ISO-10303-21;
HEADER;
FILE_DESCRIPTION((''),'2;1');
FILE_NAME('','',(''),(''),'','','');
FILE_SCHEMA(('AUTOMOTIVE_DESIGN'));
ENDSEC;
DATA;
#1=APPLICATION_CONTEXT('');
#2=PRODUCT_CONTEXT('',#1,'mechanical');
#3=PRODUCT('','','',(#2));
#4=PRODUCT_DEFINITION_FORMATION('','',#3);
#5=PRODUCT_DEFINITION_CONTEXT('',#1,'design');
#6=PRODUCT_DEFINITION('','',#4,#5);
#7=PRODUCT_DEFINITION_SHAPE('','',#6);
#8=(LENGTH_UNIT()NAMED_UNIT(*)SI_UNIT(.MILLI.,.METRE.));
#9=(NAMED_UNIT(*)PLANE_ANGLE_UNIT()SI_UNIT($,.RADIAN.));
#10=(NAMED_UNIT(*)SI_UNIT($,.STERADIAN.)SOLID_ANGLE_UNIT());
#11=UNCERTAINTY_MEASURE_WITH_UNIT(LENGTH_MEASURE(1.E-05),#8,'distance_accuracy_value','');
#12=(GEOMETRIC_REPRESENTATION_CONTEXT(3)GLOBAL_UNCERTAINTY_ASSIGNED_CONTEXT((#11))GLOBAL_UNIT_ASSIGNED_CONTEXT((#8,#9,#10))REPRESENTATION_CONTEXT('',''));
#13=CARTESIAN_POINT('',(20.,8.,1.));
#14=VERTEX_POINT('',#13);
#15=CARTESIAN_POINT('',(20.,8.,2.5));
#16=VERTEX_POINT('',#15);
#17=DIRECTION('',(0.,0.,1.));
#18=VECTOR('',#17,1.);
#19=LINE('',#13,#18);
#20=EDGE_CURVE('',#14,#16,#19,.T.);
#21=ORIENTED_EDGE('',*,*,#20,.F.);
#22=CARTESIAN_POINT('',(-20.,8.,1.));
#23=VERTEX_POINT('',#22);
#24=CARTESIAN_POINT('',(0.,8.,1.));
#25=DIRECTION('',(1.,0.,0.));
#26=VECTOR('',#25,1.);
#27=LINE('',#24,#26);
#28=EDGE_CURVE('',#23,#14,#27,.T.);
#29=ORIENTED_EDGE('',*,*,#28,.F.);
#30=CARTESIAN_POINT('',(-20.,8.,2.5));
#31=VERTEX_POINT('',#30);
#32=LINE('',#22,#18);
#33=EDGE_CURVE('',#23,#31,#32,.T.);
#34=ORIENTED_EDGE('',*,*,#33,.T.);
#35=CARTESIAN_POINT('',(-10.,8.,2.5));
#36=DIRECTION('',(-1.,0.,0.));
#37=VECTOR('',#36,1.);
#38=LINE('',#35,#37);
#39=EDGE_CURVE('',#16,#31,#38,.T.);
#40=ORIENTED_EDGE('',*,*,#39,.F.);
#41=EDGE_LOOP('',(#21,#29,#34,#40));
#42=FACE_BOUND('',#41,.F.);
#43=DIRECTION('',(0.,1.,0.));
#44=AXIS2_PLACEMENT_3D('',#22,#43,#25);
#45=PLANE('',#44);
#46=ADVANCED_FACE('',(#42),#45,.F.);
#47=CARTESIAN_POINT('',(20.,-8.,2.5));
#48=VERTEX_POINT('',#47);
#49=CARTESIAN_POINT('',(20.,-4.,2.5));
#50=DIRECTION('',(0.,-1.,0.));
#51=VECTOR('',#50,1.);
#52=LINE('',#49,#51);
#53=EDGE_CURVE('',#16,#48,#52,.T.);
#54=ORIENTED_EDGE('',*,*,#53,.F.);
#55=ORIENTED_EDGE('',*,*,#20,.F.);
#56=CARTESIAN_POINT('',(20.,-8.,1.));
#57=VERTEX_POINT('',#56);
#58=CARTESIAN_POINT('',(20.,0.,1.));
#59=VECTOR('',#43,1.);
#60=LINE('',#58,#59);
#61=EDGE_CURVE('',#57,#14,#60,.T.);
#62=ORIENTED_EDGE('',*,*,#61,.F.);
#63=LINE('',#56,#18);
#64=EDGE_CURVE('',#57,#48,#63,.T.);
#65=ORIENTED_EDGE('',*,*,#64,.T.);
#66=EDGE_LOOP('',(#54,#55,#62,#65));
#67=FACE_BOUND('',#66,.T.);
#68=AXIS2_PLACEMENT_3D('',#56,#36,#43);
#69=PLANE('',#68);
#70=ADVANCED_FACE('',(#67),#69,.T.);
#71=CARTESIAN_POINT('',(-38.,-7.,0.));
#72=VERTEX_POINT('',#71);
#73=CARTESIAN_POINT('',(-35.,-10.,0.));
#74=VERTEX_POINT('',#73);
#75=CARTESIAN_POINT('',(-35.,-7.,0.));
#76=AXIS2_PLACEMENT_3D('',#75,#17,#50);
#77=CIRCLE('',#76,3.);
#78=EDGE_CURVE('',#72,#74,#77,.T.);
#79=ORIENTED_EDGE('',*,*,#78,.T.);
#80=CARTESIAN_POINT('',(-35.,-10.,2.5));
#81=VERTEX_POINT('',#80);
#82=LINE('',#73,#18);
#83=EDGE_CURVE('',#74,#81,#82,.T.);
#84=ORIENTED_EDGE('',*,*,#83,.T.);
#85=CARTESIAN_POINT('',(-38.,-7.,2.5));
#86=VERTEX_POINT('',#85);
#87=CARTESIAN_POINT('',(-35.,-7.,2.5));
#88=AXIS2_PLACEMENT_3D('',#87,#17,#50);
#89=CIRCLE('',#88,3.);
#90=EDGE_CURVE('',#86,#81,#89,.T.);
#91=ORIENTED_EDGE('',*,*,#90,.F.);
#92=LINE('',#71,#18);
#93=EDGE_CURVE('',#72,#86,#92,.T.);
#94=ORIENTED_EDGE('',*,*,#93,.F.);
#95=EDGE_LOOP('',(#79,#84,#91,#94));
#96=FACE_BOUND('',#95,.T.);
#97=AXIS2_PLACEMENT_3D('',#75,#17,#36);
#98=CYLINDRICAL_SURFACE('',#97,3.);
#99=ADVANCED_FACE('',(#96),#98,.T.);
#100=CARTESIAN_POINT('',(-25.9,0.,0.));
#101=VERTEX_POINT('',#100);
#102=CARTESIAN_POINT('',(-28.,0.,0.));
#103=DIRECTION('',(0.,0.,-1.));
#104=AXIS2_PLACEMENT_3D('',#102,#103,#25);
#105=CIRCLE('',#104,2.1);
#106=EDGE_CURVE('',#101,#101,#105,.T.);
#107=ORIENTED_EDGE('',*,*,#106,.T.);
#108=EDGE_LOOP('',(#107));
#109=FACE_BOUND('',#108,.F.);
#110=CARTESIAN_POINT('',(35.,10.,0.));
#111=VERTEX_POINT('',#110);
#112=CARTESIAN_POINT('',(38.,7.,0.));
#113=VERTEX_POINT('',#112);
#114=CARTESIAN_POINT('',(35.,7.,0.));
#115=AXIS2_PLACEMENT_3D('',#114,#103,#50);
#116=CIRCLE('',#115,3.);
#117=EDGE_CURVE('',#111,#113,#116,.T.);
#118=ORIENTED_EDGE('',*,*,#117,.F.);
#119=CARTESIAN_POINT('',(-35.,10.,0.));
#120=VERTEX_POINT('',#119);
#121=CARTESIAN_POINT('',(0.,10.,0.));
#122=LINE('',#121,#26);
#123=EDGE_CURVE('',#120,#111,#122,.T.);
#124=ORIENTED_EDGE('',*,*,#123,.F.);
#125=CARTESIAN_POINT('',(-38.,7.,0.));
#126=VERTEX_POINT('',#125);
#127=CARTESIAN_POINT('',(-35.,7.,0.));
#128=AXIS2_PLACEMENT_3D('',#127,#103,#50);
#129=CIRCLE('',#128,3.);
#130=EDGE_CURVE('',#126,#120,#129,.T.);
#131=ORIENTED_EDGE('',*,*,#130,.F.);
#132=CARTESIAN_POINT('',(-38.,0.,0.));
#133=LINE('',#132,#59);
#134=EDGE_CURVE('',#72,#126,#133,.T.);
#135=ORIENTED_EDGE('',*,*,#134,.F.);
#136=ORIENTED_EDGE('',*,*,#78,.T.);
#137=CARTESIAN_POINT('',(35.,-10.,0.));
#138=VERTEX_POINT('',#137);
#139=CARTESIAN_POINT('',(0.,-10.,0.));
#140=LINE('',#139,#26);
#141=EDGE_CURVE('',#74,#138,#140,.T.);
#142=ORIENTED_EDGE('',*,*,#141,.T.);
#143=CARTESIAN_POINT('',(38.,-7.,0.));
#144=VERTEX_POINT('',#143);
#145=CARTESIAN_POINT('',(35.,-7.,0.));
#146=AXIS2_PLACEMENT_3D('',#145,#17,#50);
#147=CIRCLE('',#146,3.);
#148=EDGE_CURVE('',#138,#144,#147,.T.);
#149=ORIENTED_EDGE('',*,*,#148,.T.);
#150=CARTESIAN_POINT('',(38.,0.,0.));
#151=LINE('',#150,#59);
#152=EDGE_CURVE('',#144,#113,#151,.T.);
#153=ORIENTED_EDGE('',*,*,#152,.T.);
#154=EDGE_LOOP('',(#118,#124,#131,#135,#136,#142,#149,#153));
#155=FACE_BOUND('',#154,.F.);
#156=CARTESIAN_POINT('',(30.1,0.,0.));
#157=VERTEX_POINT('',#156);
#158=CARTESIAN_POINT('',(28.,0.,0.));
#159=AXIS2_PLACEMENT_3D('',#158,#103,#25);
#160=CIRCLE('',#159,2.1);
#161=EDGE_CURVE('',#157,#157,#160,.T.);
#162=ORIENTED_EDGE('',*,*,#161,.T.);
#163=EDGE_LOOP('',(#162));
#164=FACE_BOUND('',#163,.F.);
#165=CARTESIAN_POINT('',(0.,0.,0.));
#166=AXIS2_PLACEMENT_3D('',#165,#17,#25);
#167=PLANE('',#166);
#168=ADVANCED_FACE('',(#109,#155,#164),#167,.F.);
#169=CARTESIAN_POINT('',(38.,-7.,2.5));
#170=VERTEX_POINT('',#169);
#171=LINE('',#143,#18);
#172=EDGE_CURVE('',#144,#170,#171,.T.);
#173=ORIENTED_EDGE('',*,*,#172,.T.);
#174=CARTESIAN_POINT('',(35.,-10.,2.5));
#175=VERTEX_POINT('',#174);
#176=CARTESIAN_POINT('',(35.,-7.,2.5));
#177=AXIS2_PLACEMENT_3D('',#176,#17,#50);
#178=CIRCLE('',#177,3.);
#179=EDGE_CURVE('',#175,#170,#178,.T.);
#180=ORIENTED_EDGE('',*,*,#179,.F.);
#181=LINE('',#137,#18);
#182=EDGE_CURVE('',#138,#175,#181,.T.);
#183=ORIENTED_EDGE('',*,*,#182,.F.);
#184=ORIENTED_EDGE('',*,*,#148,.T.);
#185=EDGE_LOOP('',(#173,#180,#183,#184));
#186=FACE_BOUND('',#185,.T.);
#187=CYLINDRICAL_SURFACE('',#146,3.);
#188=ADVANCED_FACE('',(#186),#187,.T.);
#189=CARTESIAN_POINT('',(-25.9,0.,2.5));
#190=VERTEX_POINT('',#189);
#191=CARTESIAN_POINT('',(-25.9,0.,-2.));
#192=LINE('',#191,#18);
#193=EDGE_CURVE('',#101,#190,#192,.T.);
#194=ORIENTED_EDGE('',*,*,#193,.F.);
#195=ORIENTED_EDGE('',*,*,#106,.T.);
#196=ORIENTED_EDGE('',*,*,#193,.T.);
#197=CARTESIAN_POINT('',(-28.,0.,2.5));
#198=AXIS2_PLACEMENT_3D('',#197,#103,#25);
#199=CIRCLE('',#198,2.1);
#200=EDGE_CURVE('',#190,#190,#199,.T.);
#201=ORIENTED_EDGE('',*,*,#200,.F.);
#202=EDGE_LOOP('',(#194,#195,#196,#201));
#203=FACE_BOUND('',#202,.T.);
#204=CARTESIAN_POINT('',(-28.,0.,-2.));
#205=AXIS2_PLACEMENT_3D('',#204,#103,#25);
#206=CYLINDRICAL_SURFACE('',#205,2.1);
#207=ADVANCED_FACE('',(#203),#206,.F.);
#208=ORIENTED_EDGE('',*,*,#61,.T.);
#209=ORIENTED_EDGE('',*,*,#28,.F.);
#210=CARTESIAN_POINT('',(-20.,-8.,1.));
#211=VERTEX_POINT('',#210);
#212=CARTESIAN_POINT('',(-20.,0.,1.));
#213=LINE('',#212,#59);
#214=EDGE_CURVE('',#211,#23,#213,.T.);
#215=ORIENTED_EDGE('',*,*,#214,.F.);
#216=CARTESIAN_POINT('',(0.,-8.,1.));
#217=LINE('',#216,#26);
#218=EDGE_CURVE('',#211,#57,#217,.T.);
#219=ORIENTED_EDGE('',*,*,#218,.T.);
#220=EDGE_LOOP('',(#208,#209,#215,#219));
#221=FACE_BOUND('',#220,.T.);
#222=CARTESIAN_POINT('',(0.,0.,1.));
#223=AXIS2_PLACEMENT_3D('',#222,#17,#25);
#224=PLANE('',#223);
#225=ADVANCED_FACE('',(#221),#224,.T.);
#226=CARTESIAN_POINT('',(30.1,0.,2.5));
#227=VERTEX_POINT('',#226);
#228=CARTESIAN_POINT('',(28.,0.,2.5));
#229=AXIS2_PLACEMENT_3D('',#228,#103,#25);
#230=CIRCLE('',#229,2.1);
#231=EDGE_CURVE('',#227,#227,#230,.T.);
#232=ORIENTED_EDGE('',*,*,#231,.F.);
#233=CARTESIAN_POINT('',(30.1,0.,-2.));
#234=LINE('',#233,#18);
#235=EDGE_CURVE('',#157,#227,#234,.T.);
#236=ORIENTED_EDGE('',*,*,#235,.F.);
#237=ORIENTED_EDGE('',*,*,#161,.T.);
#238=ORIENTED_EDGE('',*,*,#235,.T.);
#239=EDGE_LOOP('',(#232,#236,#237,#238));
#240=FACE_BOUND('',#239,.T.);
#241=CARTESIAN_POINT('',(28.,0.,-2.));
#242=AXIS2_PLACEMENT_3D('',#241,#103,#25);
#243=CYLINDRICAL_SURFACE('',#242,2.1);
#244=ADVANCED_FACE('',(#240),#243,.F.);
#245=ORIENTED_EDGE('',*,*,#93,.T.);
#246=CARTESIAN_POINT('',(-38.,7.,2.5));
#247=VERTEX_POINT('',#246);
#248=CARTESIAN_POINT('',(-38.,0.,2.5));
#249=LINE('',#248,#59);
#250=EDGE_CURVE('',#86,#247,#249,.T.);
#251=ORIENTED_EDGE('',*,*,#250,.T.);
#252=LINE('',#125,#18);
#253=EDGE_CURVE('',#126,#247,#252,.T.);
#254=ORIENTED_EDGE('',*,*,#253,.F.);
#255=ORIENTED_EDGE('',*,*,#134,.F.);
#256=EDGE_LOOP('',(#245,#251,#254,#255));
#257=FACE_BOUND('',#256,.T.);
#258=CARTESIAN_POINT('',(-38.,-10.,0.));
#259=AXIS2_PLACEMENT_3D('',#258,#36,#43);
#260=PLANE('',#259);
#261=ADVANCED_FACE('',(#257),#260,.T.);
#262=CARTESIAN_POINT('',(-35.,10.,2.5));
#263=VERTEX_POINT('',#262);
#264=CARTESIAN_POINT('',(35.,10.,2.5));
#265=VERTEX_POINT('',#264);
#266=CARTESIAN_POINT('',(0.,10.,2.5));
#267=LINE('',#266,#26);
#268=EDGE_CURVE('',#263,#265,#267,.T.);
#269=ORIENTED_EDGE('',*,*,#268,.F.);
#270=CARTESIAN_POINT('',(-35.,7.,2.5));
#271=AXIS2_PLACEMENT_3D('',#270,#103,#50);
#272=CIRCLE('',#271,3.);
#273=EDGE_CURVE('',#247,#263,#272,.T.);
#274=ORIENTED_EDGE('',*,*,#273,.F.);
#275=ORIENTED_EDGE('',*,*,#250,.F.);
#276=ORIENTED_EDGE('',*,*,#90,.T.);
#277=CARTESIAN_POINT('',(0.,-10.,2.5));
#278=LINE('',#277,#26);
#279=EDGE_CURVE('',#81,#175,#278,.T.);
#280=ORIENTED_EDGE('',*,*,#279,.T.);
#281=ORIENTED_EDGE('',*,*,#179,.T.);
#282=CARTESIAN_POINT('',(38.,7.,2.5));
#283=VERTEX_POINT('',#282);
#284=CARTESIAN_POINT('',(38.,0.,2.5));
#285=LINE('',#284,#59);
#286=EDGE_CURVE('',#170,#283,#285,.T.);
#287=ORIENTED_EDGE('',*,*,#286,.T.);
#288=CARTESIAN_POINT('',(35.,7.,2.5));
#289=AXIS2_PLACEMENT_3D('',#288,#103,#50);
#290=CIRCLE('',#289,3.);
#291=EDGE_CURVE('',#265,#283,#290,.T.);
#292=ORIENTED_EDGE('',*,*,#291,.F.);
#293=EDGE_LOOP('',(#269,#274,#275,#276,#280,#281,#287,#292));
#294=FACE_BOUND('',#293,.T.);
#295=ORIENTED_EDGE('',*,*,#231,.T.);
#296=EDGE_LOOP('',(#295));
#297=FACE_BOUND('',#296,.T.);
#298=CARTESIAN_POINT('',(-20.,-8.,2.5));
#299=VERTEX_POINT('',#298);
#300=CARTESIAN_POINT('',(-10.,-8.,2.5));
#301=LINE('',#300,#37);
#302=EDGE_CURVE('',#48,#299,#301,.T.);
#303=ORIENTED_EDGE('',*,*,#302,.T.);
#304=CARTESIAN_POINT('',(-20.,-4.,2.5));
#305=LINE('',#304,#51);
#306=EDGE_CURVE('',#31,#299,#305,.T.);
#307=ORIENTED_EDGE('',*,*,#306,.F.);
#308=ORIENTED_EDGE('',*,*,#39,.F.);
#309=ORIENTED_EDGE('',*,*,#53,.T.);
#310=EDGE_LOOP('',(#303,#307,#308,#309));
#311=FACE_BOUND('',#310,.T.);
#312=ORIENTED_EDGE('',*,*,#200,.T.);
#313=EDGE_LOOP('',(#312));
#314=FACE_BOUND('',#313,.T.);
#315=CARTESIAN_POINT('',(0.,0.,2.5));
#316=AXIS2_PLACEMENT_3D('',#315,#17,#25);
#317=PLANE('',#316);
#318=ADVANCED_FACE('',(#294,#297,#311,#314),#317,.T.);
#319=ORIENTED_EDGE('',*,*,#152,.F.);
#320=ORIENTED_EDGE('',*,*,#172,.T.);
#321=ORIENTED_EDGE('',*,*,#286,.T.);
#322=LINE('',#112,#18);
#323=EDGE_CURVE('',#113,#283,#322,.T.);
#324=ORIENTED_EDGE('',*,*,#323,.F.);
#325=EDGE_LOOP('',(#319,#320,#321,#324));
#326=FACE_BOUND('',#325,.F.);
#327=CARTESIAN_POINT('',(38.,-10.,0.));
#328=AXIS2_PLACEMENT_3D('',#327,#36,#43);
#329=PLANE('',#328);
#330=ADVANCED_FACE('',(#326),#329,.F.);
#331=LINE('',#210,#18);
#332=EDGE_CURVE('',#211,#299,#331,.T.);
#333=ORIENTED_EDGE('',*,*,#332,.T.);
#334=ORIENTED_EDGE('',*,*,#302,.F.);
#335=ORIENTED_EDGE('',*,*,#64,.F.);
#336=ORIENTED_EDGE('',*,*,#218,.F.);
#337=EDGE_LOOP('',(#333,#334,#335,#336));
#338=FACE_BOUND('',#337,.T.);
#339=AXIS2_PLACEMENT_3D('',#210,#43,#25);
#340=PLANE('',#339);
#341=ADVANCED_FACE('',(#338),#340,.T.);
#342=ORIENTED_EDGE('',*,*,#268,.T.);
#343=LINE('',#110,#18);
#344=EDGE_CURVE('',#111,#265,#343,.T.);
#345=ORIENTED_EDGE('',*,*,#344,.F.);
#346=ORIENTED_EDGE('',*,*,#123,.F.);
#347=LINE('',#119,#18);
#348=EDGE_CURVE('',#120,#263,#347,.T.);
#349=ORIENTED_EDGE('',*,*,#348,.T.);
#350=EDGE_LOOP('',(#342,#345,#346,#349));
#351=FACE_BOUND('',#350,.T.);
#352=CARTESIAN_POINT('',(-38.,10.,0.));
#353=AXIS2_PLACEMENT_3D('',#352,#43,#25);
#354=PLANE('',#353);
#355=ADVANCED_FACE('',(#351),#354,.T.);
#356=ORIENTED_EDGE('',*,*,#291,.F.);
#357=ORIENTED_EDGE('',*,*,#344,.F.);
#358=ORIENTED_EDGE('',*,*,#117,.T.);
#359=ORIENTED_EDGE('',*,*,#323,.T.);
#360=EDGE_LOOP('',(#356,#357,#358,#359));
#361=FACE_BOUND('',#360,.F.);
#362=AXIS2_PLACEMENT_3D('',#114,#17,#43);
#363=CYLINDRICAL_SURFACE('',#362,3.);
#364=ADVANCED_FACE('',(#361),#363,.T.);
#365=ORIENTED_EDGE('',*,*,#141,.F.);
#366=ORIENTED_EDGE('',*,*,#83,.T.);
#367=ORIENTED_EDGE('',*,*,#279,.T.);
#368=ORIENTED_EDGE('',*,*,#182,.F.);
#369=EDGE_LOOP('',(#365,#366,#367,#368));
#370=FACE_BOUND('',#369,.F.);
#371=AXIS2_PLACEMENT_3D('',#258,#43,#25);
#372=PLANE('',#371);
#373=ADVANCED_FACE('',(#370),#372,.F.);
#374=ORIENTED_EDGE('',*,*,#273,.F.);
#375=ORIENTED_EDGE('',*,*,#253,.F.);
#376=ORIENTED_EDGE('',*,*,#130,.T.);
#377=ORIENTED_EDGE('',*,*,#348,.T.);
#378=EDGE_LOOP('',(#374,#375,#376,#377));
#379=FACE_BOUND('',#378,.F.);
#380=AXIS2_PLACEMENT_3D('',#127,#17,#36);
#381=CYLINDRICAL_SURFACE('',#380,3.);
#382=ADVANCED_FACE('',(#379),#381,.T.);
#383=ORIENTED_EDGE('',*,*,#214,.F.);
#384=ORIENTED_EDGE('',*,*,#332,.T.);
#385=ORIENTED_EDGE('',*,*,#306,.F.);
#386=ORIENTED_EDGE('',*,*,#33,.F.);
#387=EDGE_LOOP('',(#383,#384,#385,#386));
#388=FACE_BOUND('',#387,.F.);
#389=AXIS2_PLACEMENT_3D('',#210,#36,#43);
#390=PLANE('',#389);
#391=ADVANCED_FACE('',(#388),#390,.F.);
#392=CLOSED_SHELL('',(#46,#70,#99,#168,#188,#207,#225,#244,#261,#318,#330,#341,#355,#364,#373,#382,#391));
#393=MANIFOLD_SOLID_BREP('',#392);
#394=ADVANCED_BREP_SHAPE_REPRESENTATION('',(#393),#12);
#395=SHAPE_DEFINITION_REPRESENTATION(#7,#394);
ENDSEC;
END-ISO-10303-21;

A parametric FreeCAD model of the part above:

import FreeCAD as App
import Part
import Sketcher


def edges_at(feature, points):
    """Names of the edges that pass closest to the given points."""
    edges = feature.Shape.Edges
    near = lambda p: min(range(len(edges)), key=lambda i: edges[i].distToShape(Part.Vertex(*p))[0])
    return sorted({f"Edge{near(p) + 1}" for p in points})

doc = App.newDocument("Part")
body = doc.addObject("PartDesign::Body", "Body")

sketch1 = body.newObject("Sketcher::SketchObject", "Sketch")
sketch1.AttachmentSupport = (doc.getObject("XY_Plane"), [""])
sketch1.MapMode = "FlatFace"
sketch1.AttachmentOffset = App.Placement(App.Vector(0, 0, -2), App.Rotation())
sketch1.addGeometry(Part.Circle(App.Vector(28, 0, 0), App.Vector(0, 0, 1), 2.1), False)
sketch1.addConstraint([
    Sketcher.Constraint("PointOnObject", 0, 3, -1),
    Sketcher.Constraint("Diameter", 0, 4.2),
    Sketcher.Constraint("DistanceX", -1, 1, 0, 3, 28.0),
])
pad1 = body.newObject("PartDesign::Pad", "Pad")
pad1.Profile = sketch1
pad1.Length = 10
body2 = doc.addObject("PartDesign::Body", "Body001")
body2.AllowCompound = True

sketch2 = body2.newObject("Sketcher::SketchObject", "Sketch001")
sketch2.AttachmentSupport = (doc.getObject("XY_Plane001"), [""])
sketch2.MapMode = "FlatFace"
sketch2.AttachmentOffset = App.Placement(App.Vector(0, 0, -2), App.Rotation())
sketch2.addGeometry(Part.Circle(App.Vector(-28, 0, 0), App.Vector(0, 0, 1), 2.1), False)
sketch2.addConstraint([
    Sketcher.Constraint("PointOnObject", 0, 3, -1),
    Sketcher.Constraint("Diameter", 0, 4.2),
    Sketcher.Constraint("DistanceX", 0, 3, -1, 1, 28.0),
])
pad2 = body2.newObject("PartDesign::Pad", "Pad001")
pad2.Profile = sketch2
pad2.Length = 10
doc.recompute()

boolean = body2.newObject("PartDesign::Boolean", "Boolean")
boolean.Type = "Fuse"
boolean.addObjects([body])
body3 = doc.addObject("PartDesign::Body", "Body002")

sketch3 = body3.newObject("Sketcher::SketchObject", "Sketch002")
sketch3.AttachmentSupport = (doc.getObject("XY_Plane002"), [""])
sketch3.MapMode = "FlatFace"
sketch3.AttachmentOffset = App.Placement(App.Vector(0, 0, 1), App.Rotation())
sketch3.addGeometry([
    Part.LineSegment(App.Vector(-20, 8, 0), App.Vector(-20, -8, 0)),
    Part.LineSegment(App.Vector(-20, -8, 0), App.Vector(20, -8, 0)),
    Part.LineSegment(App.Vector(20, -8, 0), App.Vector(20, 8, 0)),
    Part.LineSegment(App.Vector(20, 8, 0), App.Vector(-20, 8, 0)),
], False)
sketch3.addConstraint([
    Sketcher.Constraint("Coincident", 0, 2, 1, 1),
    Sketcher.Constraint("Coincident", 1, 2, 2, 1),
    Sketcher.Constraint("Coincident", 2, 2, 3, 1),
    Sketcher.Constraint("Coincident", 3, 2, 0, 1),
    Sketcher.Constraint("Vertical", 0),
    Sketcher.Constraint("Horizontal", 1),
    Sketcher.Constraint("Vertical", 2),
    Sketcher.Constraint("Horizontal", 3),
    Sketcher.Constraint("Symmetric", 0, 2, 2, 2, -1, 1),
    Sketcher.Constraint("DistanceX", 1, 1, 1, 2, 40.0),
    Sketcher.Constraint("DistanceY", 0, 2, 0, 1, 16.0),
])
pad3 = body3.newObject("PartDesign::Pad", "Pad002")
pad3.Profile = sketch3
pad3.Length = 2.5
body4 = doc.addObject("PartDesign::Body", "Body003")

sketch4 = body4.newObject("Sketcher::SketchObject", "Sketch003")
sketch4.AttachmentSupport = (doc.getObject("XY_Plane003"), [""])
sketch4.MapMode = "FlatFace"
sketch4.addGeometry([
    Part.LineSegment(App.Vector(-38, 10, 0), App.Vector(-38, -10, 0)),
    Part.LineSegment(App.Vector(-38, -10, 0), App.Vector(38, -10, 0)),
    Part.LineSegment(App.Vector(38, -10, 0), App.Vector(38, 10, 0)),
    Part.LineSegment(App.Vector(38, 10, 0), App.Vector(-38, 10, 0)),
], False)
sketch4.addConstraint([
    Sketcher.Constraint("Coincident", 0, 2, 1, 1),
    Sketcher.Constraint("Coincident", 1, 2, 2, 1),
    Sketcher.Constraint("Coincident", 2, 2, 3, 1),
    Sketcher.Constraint("Coincident", 3, 2, 0, 1),
    Sketcher.Constraint("Vertical", 0),
    Sketcher.Constraint("Horizontal", 1),
    Sketcher.Constraint("Vertical", 2),
    Sketcher.Constraint("Horizontal", 3),
    Sketcher.Constraint("Symmetric", 0, 2, 2, 2, -1, 1),
    Sketcher.Constraint("DistanceX", 1, 1, 1, 2, 76.0),
    Sketcher.Constraint("DistanceY", 0, 2, 0, 1, 20.0),
])
pad4 = body4.newObject("PartDesign::Pad", "Pad003")
pad4.Profile = sketch4
pad4.Length = 2.5
doc.recompute()

boolean2 = body4.newObject("PartDesign::Boolean", "Boolean001")
boolean2.Type = "Cut"
boolean2.addObjects([body3])
doc.recompute()

fillet = body4.newObject("PartDesign::Fillet", "Fillet")
fillet.Base = (boolean2, edges_at(boolean2, [
    (-38, -10, 1.25),
    (-38, 10, 1.25),
    (38, -10, 1.25),
    (38, 10, 1.25),
]))
fillet.Radius = 3
doc.recompute()

boolean3 = body4.newObject("PartDesign::Boolean", "Boolean002")
boolean3.Type = "Cut"
boolean3.addObjects([body2])

doc.recompute()
